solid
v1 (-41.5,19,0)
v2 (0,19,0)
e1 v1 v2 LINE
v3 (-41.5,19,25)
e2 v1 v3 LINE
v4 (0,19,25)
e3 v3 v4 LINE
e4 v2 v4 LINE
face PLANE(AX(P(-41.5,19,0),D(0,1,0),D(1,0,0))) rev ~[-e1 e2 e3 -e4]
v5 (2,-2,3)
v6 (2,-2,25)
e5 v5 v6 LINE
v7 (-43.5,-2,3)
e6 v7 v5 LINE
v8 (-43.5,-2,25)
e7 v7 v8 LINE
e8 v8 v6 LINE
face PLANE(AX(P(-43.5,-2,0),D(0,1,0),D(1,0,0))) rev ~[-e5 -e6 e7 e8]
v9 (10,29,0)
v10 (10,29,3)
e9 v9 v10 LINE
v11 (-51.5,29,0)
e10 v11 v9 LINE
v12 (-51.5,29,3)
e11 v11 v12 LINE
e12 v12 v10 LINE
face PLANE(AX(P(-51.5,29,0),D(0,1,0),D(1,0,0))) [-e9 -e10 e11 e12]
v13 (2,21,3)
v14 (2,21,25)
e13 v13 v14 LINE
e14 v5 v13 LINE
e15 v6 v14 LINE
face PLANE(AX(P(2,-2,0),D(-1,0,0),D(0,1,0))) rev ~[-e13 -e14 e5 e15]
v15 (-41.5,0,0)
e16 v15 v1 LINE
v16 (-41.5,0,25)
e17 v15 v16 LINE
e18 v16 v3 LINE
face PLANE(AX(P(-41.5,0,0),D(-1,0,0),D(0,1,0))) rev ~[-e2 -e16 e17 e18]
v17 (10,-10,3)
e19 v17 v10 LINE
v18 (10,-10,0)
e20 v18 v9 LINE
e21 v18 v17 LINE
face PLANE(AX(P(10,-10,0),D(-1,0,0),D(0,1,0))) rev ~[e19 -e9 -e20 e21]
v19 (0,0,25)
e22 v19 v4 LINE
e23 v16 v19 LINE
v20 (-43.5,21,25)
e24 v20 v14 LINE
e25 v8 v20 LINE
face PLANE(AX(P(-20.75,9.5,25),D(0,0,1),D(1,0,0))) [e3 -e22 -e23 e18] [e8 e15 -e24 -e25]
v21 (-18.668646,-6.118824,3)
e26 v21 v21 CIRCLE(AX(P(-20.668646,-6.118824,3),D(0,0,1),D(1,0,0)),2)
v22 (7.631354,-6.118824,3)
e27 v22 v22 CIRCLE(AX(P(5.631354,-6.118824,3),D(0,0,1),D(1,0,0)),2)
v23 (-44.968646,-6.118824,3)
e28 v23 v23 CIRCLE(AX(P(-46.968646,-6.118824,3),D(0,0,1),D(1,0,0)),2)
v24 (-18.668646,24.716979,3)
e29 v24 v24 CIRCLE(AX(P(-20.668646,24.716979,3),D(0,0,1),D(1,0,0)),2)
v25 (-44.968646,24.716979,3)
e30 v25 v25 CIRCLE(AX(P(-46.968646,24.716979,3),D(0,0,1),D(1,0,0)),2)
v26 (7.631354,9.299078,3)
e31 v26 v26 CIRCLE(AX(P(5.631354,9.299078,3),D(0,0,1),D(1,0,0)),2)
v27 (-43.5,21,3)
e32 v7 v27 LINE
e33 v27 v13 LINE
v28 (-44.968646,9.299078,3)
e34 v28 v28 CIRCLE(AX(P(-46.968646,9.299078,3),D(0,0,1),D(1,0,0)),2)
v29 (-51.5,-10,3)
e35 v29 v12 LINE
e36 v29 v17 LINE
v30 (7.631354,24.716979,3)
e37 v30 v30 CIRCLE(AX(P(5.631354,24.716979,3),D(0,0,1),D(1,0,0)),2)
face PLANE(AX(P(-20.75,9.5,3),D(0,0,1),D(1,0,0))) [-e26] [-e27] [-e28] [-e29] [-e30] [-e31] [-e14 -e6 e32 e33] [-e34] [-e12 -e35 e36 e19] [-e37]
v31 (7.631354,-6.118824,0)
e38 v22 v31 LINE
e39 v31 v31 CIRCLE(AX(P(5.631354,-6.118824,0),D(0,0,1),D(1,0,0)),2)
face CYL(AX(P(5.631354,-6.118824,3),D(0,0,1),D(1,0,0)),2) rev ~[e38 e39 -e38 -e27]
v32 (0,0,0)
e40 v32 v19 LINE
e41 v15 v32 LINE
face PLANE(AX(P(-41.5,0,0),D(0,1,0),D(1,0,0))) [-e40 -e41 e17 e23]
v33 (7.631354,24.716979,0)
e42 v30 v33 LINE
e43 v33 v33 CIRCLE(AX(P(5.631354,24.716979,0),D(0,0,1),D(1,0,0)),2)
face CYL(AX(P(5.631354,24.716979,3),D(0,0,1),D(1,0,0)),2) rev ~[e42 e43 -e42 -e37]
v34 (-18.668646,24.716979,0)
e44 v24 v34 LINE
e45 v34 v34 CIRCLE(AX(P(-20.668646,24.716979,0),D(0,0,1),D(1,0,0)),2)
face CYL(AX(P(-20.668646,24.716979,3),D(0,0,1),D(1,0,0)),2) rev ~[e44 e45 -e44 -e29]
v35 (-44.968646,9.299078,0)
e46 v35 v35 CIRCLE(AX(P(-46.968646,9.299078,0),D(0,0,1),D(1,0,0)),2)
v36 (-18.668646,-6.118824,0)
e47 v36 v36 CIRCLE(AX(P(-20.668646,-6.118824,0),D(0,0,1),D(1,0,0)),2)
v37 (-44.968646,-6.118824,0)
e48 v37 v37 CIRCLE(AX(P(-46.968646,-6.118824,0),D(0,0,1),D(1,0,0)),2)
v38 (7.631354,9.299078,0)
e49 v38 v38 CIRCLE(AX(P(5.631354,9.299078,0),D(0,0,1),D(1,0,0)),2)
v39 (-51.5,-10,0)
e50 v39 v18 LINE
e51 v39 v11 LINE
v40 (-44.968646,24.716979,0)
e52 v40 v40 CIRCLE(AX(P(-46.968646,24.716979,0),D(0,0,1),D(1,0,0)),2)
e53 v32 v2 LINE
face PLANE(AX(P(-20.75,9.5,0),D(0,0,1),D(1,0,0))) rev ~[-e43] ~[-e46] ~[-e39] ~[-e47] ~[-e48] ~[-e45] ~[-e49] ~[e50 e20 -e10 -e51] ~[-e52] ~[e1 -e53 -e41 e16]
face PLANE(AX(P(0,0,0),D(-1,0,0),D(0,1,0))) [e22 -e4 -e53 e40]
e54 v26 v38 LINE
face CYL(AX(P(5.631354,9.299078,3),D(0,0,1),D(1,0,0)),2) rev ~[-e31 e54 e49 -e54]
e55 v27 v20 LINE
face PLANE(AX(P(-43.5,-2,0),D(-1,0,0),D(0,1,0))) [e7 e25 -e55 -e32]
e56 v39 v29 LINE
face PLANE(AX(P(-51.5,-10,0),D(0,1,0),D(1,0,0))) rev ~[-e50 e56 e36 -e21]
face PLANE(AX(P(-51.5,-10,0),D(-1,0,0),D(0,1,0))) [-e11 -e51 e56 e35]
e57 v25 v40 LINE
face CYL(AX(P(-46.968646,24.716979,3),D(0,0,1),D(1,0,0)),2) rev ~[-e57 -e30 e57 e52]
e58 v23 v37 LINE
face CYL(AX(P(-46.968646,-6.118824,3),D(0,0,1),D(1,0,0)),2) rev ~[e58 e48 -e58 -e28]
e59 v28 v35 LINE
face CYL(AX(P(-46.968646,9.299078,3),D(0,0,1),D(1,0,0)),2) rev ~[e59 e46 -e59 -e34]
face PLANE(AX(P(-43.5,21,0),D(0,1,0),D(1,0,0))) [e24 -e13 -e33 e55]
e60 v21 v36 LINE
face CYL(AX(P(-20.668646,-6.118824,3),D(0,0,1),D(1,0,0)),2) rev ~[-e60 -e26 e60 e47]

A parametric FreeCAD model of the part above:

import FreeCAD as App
import Part
import Sketcher
Q = App.Units.Quantity


def add_polygon(sketch, points):
    """Adds a closed chain of lines whose ends are joined by coincident constraints."""
    first, n = sketch.GeometryCount, len(points)
    for a, b in zip(points, points[1:] + points[:1]):
        sketch.addGeometry(Part.LineSegment(App.Vector(*a, 0), App.Vector(*b, 0)), False)
    for i in range(n):
        sketch.addConstraint(Sketcher.Constraint("Coincident", first + i, 2, first + (i + 1) % n, 1))

doc = App.newDocument("Part")
body = doc.addObject("PartDesign::Body", "Body")

sketch1 = body.newObject("Sketcher::SketchObject", "Sketch")
sketch1.AttachmentSupport = (doc.getObject("XY_Plane"), [""])
sketch1.MapMode = "FlatFace"
add_polygon(sketch1, [(-44, 21), (-44, -2), (2, -2), (2, 21)])
add_polygon(sketch1, [(0, 0), (-42, 0), (-42, 19), (0, 19)])
sketch1.addConstraint([
    Sketcher.Constraint("Vertical", 0),
    Sketcher.Constraint("Horizontal", 1),
    Sketcher.Constraint("Vertical", 2),
    Sketcher.Constraint("Horizontal", 3),
    Sketcher.Constraint("Horizontal", 4),
    Sketcher.Constraint("Vertical", 5),
    Sketcher.Constraint("Horizontal", 6),
    Sketcher.Constraint("Vertical", 7),
    Sketcher.Constraint("Coincident", 7, 2, -1, 1),
    Sketcher.Constraint("DistanceY", 0, 2, 0, 1, Q("23 mm")),
    Sketcher.Constraint("DistanceY", 5, 1, 5, 2, Q("19 mm")),
    Sketcher.Constraint("DistanceX", 1, 1, 1, 2, Q("45.5 mm")),
    Sketcher.Constraint("DistanceX", 4, 2, 4, 1, Q("41.5 mm")),
    Sketcher.Constraint("DistanceY", 0, 2, -1, 1, Q("2 mm")),
    Sketcher.Constraint("DistanceX", -1, 1, 1, 2, Q("2 mm")),
])
pad1 = body.newObject("PartDesign::Pad", "Pad")
pad1.Profile = sketch1
pad1.Length = 25

sketch2 = body.newObject("Sketcher::SketchObject", "Sketch001")
sketch2.AttachmentSupport = (doc.getObject("XY_Plane"), [""])
sketch2.MapMode = "FlatFace"
add_polygon(sketch2, [(-52, 29), (-52, -10), (10, -10), (10, 29)])
add_polygon(sketch2, [(2, -2), (-44, -2), (-44, 21), (2, 21)])
sketch2.addConstraint([
    Sketcher.Constraint("Vertical", 0),
    Sketcher.Constraint("Horizontal", 1),
    Sketcher.Constraint("Vertical", 2),
    Sketcher.Constraint("Horizontal", 3),
    Sketcher.Constraint("Horizontal", 4),
    Sketcher.Constraint("Vertical", 5),
    Sketcher.Constraint("Horizontal", 6),
    Sketcher.Constraint("Vertical", 7),
    Sketcher.Constraint("DistanceY", 0, 2, 0, 1, Q("39 mm")),
    Sketcher.Constraint("DistanceY", 5, 1, 5, 2, Q("23 mm")),
    Sketcher.Constraint("DistanceX", 1, 1, 1, 2, Q("61.5 mm")),
    Sketcher.Constraint("DistanceX", 4, 2, 4, 1, Q("45.5 mm")),
    Sketcher.Constraint("DistanceY", 0, 2, -1, 1, Q("10 mm")),
    Sketcher.Constraint("DistanceX", -1, 1, 1, 2, Q("10 mm")),
    Sketcher.Constraint("DistanceY", 4, 2, -1, 1, Q("2 mm")),
    Sketcher.Constraint("DistanceX", -1, 1, 6, 2, Q("2 mm")),
])
pad2 = body.newObject("PartDesign::Pad", "Pad001")
pad2.Profile = sketch2
pad2.Length = 3

sketch3 = body.newObject("Sketcher::SketchObject", "Sketch002")
sketch3.AttachmentSupport = (doc.getObject("XY_Plane"), [""])
sketch3.MapMode = "FlatFace"
sketch3.AttachmentOffset = App.Placement(App.Vector(0, 0, 3), App.Rotation())
sketch3.addGeometry([
    Part.Circle(App.Vector(-47, 24.7, 0), App.Vector(0, 0, 1), 2),
    Part.Circle(App.Vector(-20.7, 24.7, 0), App.Vector(0, 0, 1), 2),
    Part.Circle(App.Vector(5.6, 24.7, 0), App.Vector(0, 0, 1), 2),
    Part.Circle(App.Vector(-47, 9.3, 0), App.Vector(0, 0, 1), 2),
    Part.Circle(App.Vector(5.6, 9.3, 0), App.Vector(0, 0, 1), 2),
    Part.Circle(App.Vector(-47, -6.1, 0), App.Vector(0, 0, 1), 2),
    Part.Circle(App.Vector(-20.7, -6.1, 0), App.Vector(0, 0, 1), 2),
    Part.Circle(App.Vector(5.6, -6.1, 0), App.Vector(0, 0, 1), 2),
], False)
sketch3.addConstraint([
    Sketcher.Constraint("Equal", 0, 1),
    Sketcher.Constraint("Equal", 1, 2),
    Sketcher.Constraint("Equal", 2, 3),
    Sketcher.Constraint("Equal", 3, 4),
    Sketcher.Constraint("Equal", 4, 5),
    Sketcher.Constraint("Equal", 5, 6),
    Sketcher.Constraint("Equal", 6, 7),
    Sketcher.Constraint("Horizontal", 0, 3, 1, 3),
    Sketcher.Constraint("Horizontal", 1, 3, 2, 3),
    Sketcher.Constraint("Horizontal", 3, 3, 4, 3),
    Sketcher.Constraint("Horizontal", 5, 3, 6, 3),
    Sketcher.Constraint("Horizontal", 6, 3, 7, 3),
    Sketcher.Constraint("Vertical", 0, 3, 3, 3),
    Sketcher.Constraint("Vertical", 2, 3, 4, 3),
    Sketcher.Constraint("Vertical", 3, 3, 5, 3),
    Sketcher.Constraint("Vertical", 1, 3, 6, 3),
    Sketcher.Constraint("Vertical", 4, 3, 7, 3),
    Sketcher.Constraint("Diameter", 0, Q("4 mm")),
    Sketcher.Constraint("DistanceX", 0, 3, 1, 3, Q("26.3 mm")),
    Sketcher.Constraint("DistanceX", 1, 3, 2, 3, Q("26.3 mm")),
    Sketcher.Constraint("DistanceY", 3, 3, 0, 3, Q("15.417901 mm")),
    Sketcher.Constraint("DistanceY", -1, 1, 0, 3, Q("24.716979 mm")),
    Sketcher.Constraint("DistanceX", 0, 3, -1, 1, Q("46.968646 mm")),
    Sketcher.Constraint("DistanceY", 5, 3, -1, 1, Q("6.118824 mm")),
])
pocket1 = body.newObject("PartDesign::Pocket", "Pocket")
pocket1.Profile = sketch3
pocket1.Type = "ThroughAll"

doc.recompute()
